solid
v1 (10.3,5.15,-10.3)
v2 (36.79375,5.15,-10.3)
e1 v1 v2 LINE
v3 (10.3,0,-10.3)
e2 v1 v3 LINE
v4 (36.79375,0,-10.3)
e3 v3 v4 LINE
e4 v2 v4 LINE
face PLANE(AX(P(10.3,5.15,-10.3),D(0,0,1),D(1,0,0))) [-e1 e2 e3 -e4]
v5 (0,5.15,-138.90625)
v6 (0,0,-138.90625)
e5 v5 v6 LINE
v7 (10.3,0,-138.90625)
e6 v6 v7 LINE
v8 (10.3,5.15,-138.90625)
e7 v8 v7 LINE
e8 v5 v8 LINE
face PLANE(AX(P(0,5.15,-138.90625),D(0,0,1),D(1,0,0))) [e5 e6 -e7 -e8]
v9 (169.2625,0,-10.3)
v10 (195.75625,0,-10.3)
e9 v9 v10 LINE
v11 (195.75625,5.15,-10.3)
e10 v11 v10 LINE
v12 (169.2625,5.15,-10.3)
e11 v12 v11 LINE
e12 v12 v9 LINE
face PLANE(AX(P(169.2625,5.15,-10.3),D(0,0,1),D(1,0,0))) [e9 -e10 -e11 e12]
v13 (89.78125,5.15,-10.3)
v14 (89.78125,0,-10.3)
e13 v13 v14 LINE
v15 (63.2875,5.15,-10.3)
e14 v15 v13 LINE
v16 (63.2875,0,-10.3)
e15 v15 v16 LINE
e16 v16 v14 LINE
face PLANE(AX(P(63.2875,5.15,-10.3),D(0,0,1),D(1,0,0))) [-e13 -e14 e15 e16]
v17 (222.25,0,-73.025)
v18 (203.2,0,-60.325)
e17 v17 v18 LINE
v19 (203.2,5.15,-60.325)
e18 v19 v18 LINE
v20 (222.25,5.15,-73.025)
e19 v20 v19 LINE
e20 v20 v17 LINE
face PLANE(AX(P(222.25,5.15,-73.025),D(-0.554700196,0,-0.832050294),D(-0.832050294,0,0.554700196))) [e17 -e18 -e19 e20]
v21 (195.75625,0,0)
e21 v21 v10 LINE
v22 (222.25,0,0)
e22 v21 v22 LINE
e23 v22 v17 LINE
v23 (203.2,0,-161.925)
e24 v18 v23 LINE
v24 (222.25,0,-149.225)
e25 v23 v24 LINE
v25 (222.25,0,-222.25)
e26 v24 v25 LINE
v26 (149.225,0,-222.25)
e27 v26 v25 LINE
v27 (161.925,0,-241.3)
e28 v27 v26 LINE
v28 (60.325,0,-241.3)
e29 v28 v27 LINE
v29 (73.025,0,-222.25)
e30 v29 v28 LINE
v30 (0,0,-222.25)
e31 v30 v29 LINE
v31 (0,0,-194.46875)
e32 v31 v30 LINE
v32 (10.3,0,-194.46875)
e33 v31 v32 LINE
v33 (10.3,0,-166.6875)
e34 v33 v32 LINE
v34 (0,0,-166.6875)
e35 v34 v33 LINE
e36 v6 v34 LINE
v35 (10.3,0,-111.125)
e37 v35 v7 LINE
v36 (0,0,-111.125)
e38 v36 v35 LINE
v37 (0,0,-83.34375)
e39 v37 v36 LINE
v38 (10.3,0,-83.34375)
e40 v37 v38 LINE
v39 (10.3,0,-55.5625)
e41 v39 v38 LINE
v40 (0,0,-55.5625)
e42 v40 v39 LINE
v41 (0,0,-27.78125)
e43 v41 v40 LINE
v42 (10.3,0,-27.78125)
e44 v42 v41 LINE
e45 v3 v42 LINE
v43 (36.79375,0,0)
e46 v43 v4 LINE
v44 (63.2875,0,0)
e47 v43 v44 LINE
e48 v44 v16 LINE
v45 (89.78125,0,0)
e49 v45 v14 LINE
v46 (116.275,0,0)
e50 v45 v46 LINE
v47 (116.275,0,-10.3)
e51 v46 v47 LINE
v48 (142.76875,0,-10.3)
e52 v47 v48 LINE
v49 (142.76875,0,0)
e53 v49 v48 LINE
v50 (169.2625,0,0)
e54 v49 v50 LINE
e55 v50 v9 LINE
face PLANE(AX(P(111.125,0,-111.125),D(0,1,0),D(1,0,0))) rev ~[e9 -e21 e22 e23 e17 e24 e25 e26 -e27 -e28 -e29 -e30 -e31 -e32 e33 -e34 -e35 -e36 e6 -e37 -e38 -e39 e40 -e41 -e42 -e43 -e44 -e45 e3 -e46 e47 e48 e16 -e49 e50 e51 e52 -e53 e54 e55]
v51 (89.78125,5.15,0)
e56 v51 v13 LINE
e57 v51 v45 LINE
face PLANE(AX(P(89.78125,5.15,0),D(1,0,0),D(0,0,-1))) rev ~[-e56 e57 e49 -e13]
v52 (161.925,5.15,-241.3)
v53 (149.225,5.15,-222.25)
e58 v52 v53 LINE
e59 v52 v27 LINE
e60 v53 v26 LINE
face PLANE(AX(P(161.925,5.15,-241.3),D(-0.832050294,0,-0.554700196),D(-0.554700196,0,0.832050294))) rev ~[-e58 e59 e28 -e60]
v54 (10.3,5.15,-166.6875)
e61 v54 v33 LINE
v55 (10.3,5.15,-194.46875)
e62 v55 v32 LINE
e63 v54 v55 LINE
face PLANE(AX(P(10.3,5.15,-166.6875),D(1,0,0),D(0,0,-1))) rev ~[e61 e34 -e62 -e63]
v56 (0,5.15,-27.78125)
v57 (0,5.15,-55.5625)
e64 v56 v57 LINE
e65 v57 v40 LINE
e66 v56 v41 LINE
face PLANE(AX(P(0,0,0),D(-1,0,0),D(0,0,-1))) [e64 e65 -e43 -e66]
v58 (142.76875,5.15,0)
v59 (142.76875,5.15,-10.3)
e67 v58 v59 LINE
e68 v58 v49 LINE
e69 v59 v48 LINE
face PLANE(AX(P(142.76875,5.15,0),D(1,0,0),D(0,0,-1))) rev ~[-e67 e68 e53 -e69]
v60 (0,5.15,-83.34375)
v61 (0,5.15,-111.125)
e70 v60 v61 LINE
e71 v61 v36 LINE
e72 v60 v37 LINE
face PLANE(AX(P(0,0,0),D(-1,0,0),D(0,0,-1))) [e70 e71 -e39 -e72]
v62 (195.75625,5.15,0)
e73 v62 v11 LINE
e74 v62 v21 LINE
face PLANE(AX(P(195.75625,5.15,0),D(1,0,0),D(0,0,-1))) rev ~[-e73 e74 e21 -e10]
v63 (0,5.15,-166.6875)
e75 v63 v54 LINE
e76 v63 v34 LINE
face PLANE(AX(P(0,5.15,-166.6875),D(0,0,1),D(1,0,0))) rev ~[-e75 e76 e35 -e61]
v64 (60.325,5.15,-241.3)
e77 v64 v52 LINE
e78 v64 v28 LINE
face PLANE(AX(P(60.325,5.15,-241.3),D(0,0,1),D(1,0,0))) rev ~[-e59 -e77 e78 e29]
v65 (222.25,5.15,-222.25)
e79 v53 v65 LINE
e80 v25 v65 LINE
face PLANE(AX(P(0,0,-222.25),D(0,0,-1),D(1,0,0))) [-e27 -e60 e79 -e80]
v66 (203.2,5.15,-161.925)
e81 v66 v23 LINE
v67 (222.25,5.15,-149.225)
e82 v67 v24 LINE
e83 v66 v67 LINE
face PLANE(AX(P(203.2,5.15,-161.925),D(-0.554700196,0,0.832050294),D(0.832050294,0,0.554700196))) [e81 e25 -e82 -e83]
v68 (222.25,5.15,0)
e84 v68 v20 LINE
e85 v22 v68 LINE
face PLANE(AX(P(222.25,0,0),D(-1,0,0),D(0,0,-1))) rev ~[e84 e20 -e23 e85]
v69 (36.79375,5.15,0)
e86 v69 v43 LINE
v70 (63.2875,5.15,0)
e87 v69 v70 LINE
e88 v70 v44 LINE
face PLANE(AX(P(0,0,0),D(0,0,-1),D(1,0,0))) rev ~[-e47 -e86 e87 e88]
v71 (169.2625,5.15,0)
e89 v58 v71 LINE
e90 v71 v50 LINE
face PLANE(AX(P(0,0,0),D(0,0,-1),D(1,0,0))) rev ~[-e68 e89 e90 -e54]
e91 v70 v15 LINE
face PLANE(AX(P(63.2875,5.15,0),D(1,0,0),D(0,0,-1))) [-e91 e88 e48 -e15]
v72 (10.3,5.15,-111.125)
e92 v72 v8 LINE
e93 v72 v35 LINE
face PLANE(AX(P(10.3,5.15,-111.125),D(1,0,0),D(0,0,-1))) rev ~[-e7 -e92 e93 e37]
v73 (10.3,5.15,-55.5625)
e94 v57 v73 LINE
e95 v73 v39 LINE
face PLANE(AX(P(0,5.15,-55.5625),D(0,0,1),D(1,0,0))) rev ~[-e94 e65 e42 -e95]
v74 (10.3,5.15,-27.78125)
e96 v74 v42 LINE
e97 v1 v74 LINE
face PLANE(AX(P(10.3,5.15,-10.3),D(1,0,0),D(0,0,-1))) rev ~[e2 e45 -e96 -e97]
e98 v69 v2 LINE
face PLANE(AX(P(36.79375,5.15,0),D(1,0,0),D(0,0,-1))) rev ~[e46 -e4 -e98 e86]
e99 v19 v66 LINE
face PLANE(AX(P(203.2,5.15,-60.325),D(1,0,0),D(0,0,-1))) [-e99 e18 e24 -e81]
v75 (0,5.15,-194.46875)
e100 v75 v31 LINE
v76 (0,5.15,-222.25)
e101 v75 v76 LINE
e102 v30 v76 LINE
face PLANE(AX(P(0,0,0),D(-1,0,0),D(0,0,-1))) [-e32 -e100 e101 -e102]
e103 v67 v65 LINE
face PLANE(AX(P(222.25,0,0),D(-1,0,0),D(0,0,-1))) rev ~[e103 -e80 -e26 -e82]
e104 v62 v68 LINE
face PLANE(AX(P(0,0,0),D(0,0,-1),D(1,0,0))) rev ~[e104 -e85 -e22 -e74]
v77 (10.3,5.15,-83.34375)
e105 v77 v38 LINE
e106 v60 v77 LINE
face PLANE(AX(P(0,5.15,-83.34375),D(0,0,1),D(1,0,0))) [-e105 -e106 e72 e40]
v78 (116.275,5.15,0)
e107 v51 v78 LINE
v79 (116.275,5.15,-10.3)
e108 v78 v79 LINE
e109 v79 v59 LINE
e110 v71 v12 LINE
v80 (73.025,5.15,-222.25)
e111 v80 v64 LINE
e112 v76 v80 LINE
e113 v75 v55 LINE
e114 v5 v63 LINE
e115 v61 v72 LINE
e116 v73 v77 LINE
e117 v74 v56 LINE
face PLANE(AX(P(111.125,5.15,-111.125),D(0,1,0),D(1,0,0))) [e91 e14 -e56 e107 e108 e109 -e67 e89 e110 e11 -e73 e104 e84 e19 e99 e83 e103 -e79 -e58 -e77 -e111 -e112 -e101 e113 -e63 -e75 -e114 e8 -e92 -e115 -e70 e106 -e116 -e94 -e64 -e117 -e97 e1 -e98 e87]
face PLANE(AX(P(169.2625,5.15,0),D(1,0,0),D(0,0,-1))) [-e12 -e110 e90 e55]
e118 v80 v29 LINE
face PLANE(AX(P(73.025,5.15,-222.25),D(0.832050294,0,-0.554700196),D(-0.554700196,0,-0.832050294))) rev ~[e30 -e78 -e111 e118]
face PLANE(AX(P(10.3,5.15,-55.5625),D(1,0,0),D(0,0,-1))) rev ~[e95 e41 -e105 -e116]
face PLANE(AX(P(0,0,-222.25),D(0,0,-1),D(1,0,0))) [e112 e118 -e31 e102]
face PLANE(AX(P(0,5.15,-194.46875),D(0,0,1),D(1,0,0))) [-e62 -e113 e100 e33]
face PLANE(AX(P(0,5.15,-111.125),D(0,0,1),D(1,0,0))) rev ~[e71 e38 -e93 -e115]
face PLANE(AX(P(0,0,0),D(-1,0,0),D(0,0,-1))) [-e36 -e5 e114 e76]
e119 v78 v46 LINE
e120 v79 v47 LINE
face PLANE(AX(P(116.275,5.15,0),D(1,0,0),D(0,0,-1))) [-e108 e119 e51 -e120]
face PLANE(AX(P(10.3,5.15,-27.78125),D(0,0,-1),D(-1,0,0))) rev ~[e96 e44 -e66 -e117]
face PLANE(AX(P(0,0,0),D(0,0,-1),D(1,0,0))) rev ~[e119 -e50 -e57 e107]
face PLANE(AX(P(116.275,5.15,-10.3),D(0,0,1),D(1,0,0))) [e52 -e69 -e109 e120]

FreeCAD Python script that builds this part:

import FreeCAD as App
import Part
import Sketcher
from FreeCAD import Vector
Q = App.Units.Quantity


def add_polygon(sketch, points):
    """Adds a closed chain of lines whose ends are joined by coincident constraints."""
    first, n = sketch.GeometryCount, len(points)
    for a, b in zip(points, points[1:] + points[:1]):
        sketch.addGeometry(Part.LineSegment(App.Vector(*a, 0), App.Vector(*b, 0)), False)
    for i in range(n):
        sketch.addConstraint(Sketcher.Constraint("Coincident", first + i, 2, first + (i + 1) % n, 1))

doc = App.newDocument("Part")
body = doc.addObject("PartDesign::Body", "Body")

# Sketch on XZ plane
sketch1 = body.newObject("Sketcher::SketchObject", "Sketch")
sketch1.AttachmentSupport = (doc.getObject("XZ_Plane"), [""])
sketch1.MapMode = "FlatFace"
add_polygon(sketch1, [(0, -222), (0, 0), (222, 0), (222, -222)])  # lines 0-3
sketch1.addConstraint([
    Sketcher.Constraint("Vertical", 0),
    Sketcher.Constraint("Horizontal", 1),
    Sketcher.Constraint("Vertical", 2),
    Sketcher.Constraint("Horizontal", 3),
    Sketcher.Constraint("Coincident", 0, 2, -1, 1),
    Sketcher.Constraint("Equal", 3, 0),
    Sketcher.Constraint("DistanceX", 1, 1, 1, 2, Q("8.75 in")),
])
pad1 = body.newObject("PartDesign::Pad", "Pad")
pad1.Profile = sketch1
pad1.Length = 5.15
pad1.Reversed = True

# Sketch on XZ plane
sketch2 = body.newObject("Sketcher::SketchObject", "Sketch001")
sketch2.AttachmentSupport = (doc.getObject("XZ_Plane"), [""])
sketch2.MapMode = "FlatFace"
sketch2.AttachmentOffset = App.Placement(Vector(0, 0, -5.15), App.Rotation())
add_polygon(sketch2, [(169, -10), (169, 0), (196, 0), (196, -10)])  # lines 0-3
add_polygon(sketch2, [(116, -10), (116, 0), (143, 0), (143, -10)])  # lines 4-7
add_polygon(sketch2, [(63, -10), (63, 0), (90, 0), (90, -10)])  # lines 8-11
add_polygon(sketch2, [(37, 0), (37, -10), (10, -10), (10, -28), (0, -28), (0, 0)])  # lines 12-17
add_polygon(sketch2, [(0, -83), (0, -56), (10, -56), (10, -83)])  # lines 18-21
add_polygon(sketch2, [(0, -139), (0, -111), (10, -111), (10, -139)])  # lines 22-25
add_polygon(sketch2, [(0, -194), (0, -167), (10, -167), (10, -194)])  # lines 26-29
sketch2.addConstraint([
    Sketcher.Constraint("Vertical", 0),
    Sketcher.Constraint("Horizontal", 1),
    Sketcher.Constraint("Vertical", 2),
    Sketcher.Constraint("Horizontal", 3),
    Sketcher.Constraint("Vertical", 4),
    Sketcher.Constraint("Horizontal", 5),
    Sketcher.Constraint("Vertical", 6),
    Sketcher.Constraint("Horizontal", 7),
    Sketcher.Constraint("Vertical", 8),
    Sketcher.Constraint("Horizontal", 9),
    Sketcher.Constraint("Vertical", 10),
    Sketcher.Constraint("Horizontal", 11),
    Sketcher.Constraint("Vertical", 12),
    Sketcher.Constraint("Horizontal", 13),
    Sketcher.Constraint("Vertical", 14),
    Sketcher.Constraint("Horizontal", 15),
    Sketcher.Constraint("Vertical", 16),
    Sketcher.Constraint("Horizontal", 17),
    Sketcher.Constraint("Vertical", 18),
    Sketcher.Constraint("Horizontal", 19),
    Sketcher.Constraint("Vertical", 20),
    Sketcher.Constraint("Horizontal", 21),
    Sketcher.Constraint("Vertical", 22),
    Sketcher.Constraint("Horizontal", 23),
    Sketcher.Constraint("Vertical", 24),
    Sketcher.Constraint("Horizontal", 25),
    Sketcher.Constraint("Vertical", 26),
    Sketcher.Constraint("Horizontal", 27),
    Sketcher.Constraint("Vertical", 28),
    Sketcher.Constraint("Horizontal", 29),
    Sketcher.Constraint("Coincident", 16, 2, -1, 1),
    Sketcher.Constraint("PointOnObject", 0, 2, -1),
    Sketcher.Constraint("PointOnObject", 4, 2, -1),
    Sketcher.Constraint("PointOnObject", 8, 2, -1),
    Sketcher.Constraint("PointOnObject", 18, 2, -2),
    Sketcher.Constraint("PointOnObject", 22, 2, -2),
    Sketcher.Constraint("PointOnObject", 26, 2, -2),
    Sketcher.Constraint("Horizontal", 3, 2, 6, 2),
    Sketcher.Constraint("Horizontal", 7, 2, 10, 2),
    Sketcher.Constraint("Horizontal", 11, 2, 12, 2),
    Sketcher.Constraint("Vertical", 14, 2, 19, 2),
    Sketcher.Constraint("Vertical", 20, 2, 23, 2),
    Sketcher.Constraint("Vertical", 24, 2, 27, 2),
    Sketcher.Constraint("Equal", 3, 5),
    Sketcher.Constraint("Equal", 7, 9),
    Sketcher.Constraint("Equal", 11, 13),
    Sketcher.Constraint("Equal", 29, 0),
    Sketcher.Constraint("Equal", 16, 18),
    Sketcher.Constraint("Equal", 20, 22),
    Sketcher.Constraint("Equal", 24, 26),
    Sketcher.Constraint("DistanceY", 16, 1, 16, 2, Q("1.09375 in")),
    Sketcher.Constraint("DistanceY", 18, 2, -1, 1, Q("2.1875 in")),
    Sketcher.Constraint("DistanceY", 22, 2, -1, 1, Q("4.375 in")),
    Sketcher.Constraint("DistanceY", 26, 2, -1, 1, Q("6.5625 in")),
    Sketcher.Constraint("DistanceX", 15, 2, 15, 1, 10.3),
    Sketcher.Constraint("DistanceX", 1, 1, 1, 2, 26.49375),
    Sketcher.Constraint("DistanceX", -1, 1, 0, 2, 169.2625),
    Sketcher.Constraint("DistanceX", -1, 1, 4, 2, 116.275),
    Sketcher.Constraint("DistanceX", -1, 1, 8, 2, 63.2875),
])
pocket1 = body.newObject("PartDesign::Pocket", "Pocket")
pocket1.Profile = sketch2
pocket1.Type = "ThroughAll"
pocket1.Reversed = True

# Sketch on XZ plane
sketch3 = body.newObject("Sketcher::SketchObject", "Sketch002")
sketch3.AttachmentSupport = (doc.getObject("XZ_Plane"), [""])
sketch3.MapMode = "FlatFace"
sketch3.AttachmentOffset = App.Placement(Vector(0, 0, -5.15), App.Rotation())
add_polygon(sketch3, [(60, -241), (73, -222), (149, -222), (162, -241)])  # lines 0-3
sketch3.addConstraint([
    Sketcher.Constraint("Horizontal", 1),
    Sketcher.Constraint("Horizontal", 3),
    Sketcher.Constraint("Equal", 0, 2),
    Sketcher.Constraint("DistanceX", 1, 1, 1, 2, Q("3 in")),
    Sketcher.Constraint("DistanceX", 3, 2, 3, 1, Q("4 in")),
    Sketcher.Constraint("DistanceY", 2, 2, -1, 1, Q("9.5 in")),
    Sketcher.Constraint("DistanceY", 0, 2, -1, 1, Q("8.75 in")),
    Sketcher.Constraint("DistanceX", -1, 1, 0, 2, Q("2.875 in")),
])
pad2 = body.newObject("PartDesign::Pad", "Pad001")
pad2.Profile = sketch3
pad2.Length = 5.15

# Sketch on XZ plane
sketch4 = body.newObject("Sketcher::SketchObject", "Sketch003")
sketch4.AttachmentSupport = (doc.getObject("XZ_Plane"), [""])
sketch4.MapMode = "FlatFace"
sketch4.AttachmentOffset = App.Placement(Vector(0, 0, -5.15), App.Rotation())
add_polygon(sketch4, [(203, -60), (222, -73), (222, -149), (203, -162)])  # lines 0-3
sketch4.addConstraint([
    Sketcher.Constraint("Vertical", 1),
    Sketcher.Constraint("Vertical", 3),
    Sketcher.Constraint("Equal", 0, 2),
    Sketcher.Constraint("DistanceY", 1, 2, 1, 1, Q("3 in")),
    Sketcher.Constraint("DistanceY", 3, 1, 3, 2, Q("4 in")),
    Sketcher.Constraint("DistanceX", -1, 1, 2, 2, Q("8 in")),
    Sketcher.Constraint("DistanceX", -1, 1, 0, 2, Q("8.75 in")),
    Sketcher.Constraint("DistanceY", 0, 2, -1, 1, Q("2.875 in")),
])
pocket2 = body.newObject("PartDesign::Pocket", "Pocket001")
pocket2.Profile = sketch4
pocket2.Type = "ThroughAll"
pocket2.Reversed = True

doc.recompute()
